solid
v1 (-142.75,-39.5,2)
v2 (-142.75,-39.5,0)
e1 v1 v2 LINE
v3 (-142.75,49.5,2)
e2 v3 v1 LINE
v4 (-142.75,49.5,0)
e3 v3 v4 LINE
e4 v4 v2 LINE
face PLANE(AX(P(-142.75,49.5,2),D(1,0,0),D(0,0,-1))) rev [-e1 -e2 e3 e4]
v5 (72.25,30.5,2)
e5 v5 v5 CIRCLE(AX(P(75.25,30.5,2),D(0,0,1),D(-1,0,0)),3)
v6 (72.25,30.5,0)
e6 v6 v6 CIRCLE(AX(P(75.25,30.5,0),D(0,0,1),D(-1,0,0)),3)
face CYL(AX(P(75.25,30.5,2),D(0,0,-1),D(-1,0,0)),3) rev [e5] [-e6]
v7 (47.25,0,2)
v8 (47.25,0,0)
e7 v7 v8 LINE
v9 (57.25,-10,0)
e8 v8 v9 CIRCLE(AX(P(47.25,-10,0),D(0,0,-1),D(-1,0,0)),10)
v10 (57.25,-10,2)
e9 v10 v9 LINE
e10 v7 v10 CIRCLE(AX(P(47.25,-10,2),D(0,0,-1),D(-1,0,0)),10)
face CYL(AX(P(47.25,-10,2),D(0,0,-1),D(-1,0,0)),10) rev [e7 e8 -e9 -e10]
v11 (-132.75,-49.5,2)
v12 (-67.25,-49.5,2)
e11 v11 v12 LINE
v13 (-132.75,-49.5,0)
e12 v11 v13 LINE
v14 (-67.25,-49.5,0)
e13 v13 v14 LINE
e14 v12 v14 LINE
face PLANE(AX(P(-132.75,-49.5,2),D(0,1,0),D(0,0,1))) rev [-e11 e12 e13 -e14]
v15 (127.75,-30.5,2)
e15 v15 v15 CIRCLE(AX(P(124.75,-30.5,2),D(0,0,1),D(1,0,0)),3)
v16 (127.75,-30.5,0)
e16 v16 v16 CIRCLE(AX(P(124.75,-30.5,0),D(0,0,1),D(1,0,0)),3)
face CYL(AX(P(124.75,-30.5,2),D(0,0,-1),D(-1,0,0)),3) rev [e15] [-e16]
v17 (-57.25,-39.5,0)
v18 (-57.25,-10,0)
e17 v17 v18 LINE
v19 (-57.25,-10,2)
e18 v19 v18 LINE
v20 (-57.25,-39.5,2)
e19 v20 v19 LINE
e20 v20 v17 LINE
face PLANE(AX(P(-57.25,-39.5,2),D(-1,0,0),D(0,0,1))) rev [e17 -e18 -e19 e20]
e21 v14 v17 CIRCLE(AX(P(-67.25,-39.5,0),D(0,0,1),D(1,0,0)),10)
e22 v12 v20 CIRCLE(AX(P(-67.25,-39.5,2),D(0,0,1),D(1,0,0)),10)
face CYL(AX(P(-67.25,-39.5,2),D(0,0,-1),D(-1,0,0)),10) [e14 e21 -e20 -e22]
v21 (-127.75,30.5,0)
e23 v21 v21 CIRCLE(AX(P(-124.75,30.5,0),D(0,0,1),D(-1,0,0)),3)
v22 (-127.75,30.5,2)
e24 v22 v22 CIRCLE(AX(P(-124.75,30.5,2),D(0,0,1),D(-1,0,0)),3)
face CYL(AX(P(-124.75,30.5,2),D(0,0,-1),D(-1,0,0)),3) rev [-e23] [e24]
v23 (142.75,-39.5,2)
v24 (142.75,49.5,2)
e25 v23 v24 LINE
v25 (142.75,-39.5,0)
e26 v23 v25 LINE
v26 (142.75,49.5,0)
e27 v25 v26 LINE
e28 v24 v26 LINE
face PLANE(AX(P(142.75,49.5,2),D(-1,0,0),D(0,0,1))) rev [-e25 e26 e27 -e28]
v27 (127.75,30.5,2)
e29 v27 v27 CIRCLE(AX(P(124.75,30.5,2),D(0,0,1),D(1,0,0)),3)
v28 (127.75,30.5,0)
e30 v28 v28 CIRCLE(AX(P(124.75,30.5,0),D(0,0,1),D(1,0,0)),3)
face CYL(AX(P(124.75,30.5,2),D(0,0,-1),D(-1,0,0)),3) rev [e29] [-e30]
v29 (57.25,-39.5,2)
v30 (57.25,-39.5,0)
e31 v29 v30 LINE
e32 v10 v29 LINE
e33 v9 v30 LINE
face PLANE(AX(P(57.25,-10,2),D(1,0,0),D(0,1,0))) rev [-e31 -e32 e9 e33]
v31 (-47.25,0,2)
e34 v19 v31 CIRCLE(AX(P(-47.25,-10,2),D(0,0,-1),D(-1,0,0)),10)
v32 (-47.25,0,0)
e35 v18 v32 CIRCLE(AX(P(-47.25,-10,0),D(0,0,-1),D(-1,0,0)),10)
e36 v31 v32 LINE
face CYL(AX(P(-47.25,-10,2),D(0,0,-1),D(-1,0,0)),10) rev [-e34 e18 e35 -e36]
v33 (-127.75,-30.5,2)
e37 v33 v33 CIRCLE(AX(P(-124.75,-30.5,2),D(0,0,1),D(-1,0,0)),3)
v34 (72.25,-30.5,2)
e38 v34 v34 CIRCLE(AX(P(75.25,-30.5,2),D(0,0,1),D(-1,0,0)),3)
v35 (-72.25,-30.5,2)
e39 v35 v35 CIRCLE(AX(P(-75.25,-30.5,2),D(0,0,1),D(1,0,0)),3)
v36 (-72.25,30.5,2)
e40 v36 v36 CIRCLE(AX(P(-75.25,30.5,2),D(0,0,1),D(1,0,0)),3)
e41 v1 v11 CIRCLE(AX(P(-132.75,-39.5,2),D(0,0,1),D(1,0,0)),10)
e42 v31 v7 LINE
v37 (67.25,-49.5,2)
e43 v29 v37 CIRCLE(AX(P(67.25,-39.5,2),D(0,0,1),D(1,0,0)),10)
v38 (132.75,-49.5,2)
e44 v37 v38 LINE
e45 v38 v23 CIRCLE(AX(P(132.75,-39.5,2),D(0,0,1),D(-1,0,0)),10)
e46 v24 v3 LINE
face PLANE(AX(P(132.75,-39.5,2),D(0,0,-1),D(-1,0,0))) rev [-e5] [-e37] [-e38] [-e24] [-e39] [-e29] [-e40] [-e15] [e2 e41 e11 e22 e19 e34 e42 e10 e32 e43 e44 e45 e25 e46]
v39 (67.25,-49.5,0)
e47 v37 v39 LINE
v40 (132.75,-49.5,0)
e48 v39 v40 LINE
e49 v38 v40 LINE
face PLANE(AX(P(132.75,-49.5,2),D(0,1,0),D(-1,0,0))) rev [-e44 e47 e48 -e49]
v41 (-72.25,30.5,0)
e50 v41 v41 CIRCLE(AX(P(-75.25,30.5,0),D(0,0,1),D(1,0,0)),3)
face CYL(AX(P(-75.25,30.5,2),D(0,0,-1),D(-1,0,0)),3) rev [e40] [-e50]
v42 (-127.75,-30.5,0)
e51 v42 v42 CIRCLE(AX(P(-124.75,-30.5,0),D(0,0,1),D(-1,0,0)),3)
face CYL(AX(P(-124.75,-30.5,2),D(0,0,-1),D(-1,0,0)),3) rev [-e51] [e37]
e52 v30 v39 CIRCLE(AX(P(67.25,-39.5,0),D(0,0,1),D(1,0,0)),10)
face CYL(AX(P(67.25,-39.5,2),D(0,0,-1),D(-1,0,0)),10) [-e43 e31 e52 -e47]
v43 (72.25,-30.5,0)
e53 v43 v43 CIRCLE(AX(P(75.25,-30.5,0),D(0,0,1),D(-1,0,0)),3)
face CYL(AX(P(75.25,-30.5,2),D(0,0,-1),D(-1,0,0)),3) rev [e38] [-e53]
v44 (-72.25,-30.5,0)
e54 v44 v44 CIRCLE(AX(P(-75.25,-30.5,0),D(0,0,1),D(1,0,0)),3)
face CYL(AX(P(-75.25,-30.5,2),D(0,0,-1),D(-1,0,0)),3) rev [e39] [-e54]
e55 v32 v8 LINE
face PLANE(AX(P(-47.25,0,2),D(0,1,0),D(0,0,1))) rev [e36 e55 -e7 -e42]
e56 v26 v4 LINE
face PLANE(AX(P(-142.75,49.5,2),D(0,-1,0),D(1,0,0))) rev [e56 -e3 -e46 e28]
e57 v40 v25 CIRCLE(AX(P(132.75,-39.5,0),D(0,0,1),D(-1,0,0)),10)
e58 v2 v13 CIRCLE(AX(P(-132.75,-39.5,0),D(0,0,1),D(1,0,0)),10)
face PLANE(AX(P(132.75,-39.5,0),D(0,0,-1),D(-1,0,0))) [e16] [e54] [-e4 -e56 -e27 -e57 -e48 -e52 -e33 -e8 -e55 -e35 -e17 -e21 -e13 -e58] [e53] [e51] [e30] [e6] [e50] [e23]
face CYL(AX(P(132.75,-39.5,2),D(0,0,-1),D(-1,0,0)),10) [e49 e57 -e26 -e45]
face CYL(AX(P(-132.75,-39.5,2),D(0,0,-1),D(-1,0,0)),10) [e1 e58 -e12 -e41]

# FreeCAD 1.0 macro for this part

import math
import FreeCAD as App
import Part
import Sketcher

doc = App.newDocument("Part")
params = doc.addObject("Spreadsheet::Sheet", "Params")
for row, (alias, value) in enumerate([
    ("sketch1_diameter", "6 mm"),
    ("sketch1_radius", "10 mm"),
    ("sketch1_height", "89 mm"),
    ("sketch1_width", "65.5 mm"),
    ("sketch1_width2", "94.5 mm"),
    ("pad1_length", "2 mm"),
], start=1):
    params.set(f"A{row}", alias)
    params.set(f"B{row}", "=" + value)
    params.setAlias(f"B{row}", alias)

body = doc.addObject("PartDesign::Body", "Body")

# Sketch on XY plane
sketch1 = body.newObject("Sketcher::SketchObject", "Sketch")
sketch1.AttachmentSupport = (doc.getObject("XY_Plane"), [""])
sketch1.MapMode = "FlatFace"
sketch1.addGeometry([
    Part.LineSegment(App.Vector(-142.8, 49.5, 0), App.Vector(-142.8, -39.5, 0)),  # 0
    Part.ArcOfCircle(Part.Circle(App.Vector(-132.8, -39.5, 0), App.Vector(0, 0, 1), 10), math.radians(180), math.radians(270)),  # 1
    Part.LineSegment(App.Vector(-132.8, -49.5, 0), App.Vector(-67.2, -49.5, 0)),  # 2
    Part.ArcOfCircle(Part.Circle(App.Vector(-67.2, -39.5, 0), App.Vector(0, 0, 1), 10), math.radians(-90), math.radians(0)),  # 3
    Part.LineSegment(App.Vector(-57.2, -39.5, 0), App.Vector(-57.2, -10, 0)),  # 4
    Part.ArcOfCircle(Part.Circle(App.Vector(-47.2, -10, 0), App.Vector(0, 0, 1), 10), math.radians(90), math.radians(180)),  # 5
    Part.LineSegment(App.Vector(-47.2, 0, 0), App.Vector(47.2, 0, 0)),  # 6
    Part.ArcOfCircle(Part.Circle(App.Vector(47.2, -10, 0), App.Vector(0, 0, 1), 10), math.radians(0), math.radians(90)),  # 7
    Part.LineSegment(App.Vector(57.2, -10, 0), App.Vector(57.2, -39.5, 0)),  # 8
    Part.ArcOfCircle(Part.Circle(App.Vector(67.2, -39.5, 0), App.Vector(0, 0, 1), 10), math.radians(180), math.radians(270)),  # 9
    Part.LineSegment(App.Vector(67.2, -49.5, 0), App.Vector(132.8, -49.5, 0)),  # 10
    Part.ArcOfCircle(Part.Circle(App.Vector(132.8, -39.5, 0), App.Vector(0, 0, 1), 10), math.radians(-90), math.radians(0)),  # 11
    Part.LineSegment(App.Vector(142.8, -39.5, 0), App.Vector(142.8, 49.5, 0)),  # 12
    Part.LineSegment(App.Vector(142.8, 49.5, 0), App.Vector(-142.8, 49.5, 0)),  # 13
    Part.Circle(App.Vector(-124.8, -30.5, 0), App.Vector(0, 0, 1), 3),  # 14
    Part.Circle(App.Vector(-75.2, -30.5, 0), App.Vector(0, 0, 1), 3),  # 15
    Part.Circle(App.Vector(75.2, -30.5, 0), App.Vector(0, 0, 1), 3),  # 16
    Part.Circle(App.Vector(124.8, -30.5, 0), App.Vector(0, 0, 1), 3),  # 17
    Part.Circle(App.Vector(-124.8, 30.5, 0), App.Vector(0, 0, 1), 3),  # 18
    Part.Circle(App.Vector(-75.2, 30.5, 0), App.Vector(0, 0, 1), 3),  # 19
    Part.Circle(App.Vector(75.2, 30.5, 0), App.Vector(0, 0, 1), 3),  # 20
    Part.Circle(App.Vector(124.8, 30.5, 0), App.Vector(0, 0, 1), 3),  # 21
], False)
sketch1.addConstraint([
    Sketcher.Constraint("Tangent", 0, 2, 1, 1),
    Sketcher.Constraint("Tangent", 1, 2, 2, 1),
    Sketcher.Constraint("Tangent", 2, 2, 3, 1),
    Sketcher.Constraint("Tangent", 3, 2, 4, 1),
    Sketcher.Constraint("Tangent", 4, 2, 5, 2),
    Sketcher.Constraint("Tangent", 5, 1, 6, 1),
    Sketcher.Constraint("Tangent", 6, 2, 7, 2),
    Sketcher.Constraint("Tangent", 7, 1, 8, 1),
    Sketcher.Constraint("Tangent", 8, 2, 9, 1),
    Sketcher.Constraint("Tangent", 9, 2, 10, 1),
    Sketcher.Constraint("Tangent", 10, 2, 11, 1),
    Sketcher.Constraint("Tangent", 11, 2, 12, 1),
    Sketcher.Constraint("Coincident", 12, 2, 13, 1),
    Sketcher.Constraint("Coincident", 13, 2, 0, 1),
    Sketcher.Constraint("Vertical", 0),
    Sketcher.Constraint("Horizontal", 2),
    Sketcher.Constraint("Vertical", 4),
    Sketcher.Constraint("Horizontal", 6),
    Sketcher.Constraint("Vertical", 8),
    Sketcher.Constraint("Horizontal", 10),
    Sketcher.Constraint("Vertical", 12),
    Sketcher.Constraint("Horizontal", 13),
    Sketcher.Constraint("Equal", 1, 3),
    Sketcher.Constraint("Equal", 3, 5),
    Sketcher.Constraint("Equal", 5, 7),
    Sketcher.Constraint("Equal", 7, 9),
    Sketcher.Constraint("Equal", 9, 11),
    Sketcher.Constraint("Equal", 14, 15),
    Sketcher.Constraint("Equal", 15, 16),
    Sketcher.Constraint("Equal", 16, 17),
    Sketcher.Constraint("Equal", 17, 18),
    Sketcher.Constraint("Equal", 18, 19),
    Sketcher.Constraint("Equal", 19, 20),
    Sketcher.Constraint("Equal", 20, 21),
    Sketcher.Constraint("Symmetric", 17, 3, 18, 3, -1, 1),
    Sketcher.Constraint("Symmetric", 16, 3, 19, 3, -1, 1),
    Sketcher.Constraint("Symmetric", 15, 3, 20, 3, -1, 1),
    Sketcher.Constraint("Symmetric", 14, 3, 21, 3, -1, 1),
    Sketcher.Constraint("Symmetric", 5, 1, 6, 2, -1, 1),
    Sketcher.Constraint("Symmetric", 1, 3, 11, 3, -2),
    Sketcher.Constraint("Symmetric", 15, 3, 16, 3, -2),
    Sketcher.Constraint("Symmetric", 14, 3, 17, 3, -2),
    Sketcher.Constraint("Horizontal", 14, 3, 15, 3),
    Sketcher.Constraint("Diameter", 14, 6.0),
    Sketcher.Constraint("Radius", 1, 10.0),
    Sketcher.Constraint("DistanceY", 0, 2, 0, 1, 89.0),
    Sketcher.Constraint("DistanceX", 2, 1, 2, 2, 65.5),
    Sketcher.Constraint("DistanceX", 6, 1, 6, 2, 94.5),
    Sketcher.Constraint("DistanceY", 4, 1, 4, 2, 29.5),
    Sketcher.Constraint("DistanceX", 1, 3, 14, 3, 8.0),
    Sketcher.Constraint("DistanceY", 1, 3, 14, 3, 9.0),
    Sketcher.Constraint("DistanceX", 15, 3, 3, 3, 8.0),
])
sketch1.setExpression("Constraints[43]", "Params.sketch1_diameter")
sketch1.setExpression("Constraints[44]", "Params.sketch1_radius")
sketch1.setExpression("Constraints[45]", "Params.sketch1_height")
sketch1.setExpression("Constraints[46]", "Params.sketch1_width")
sketch1.setExpression("Constraints[47]", "Params.sketch1_width2")
pad1 = body.newObject("PartDesign::Pad", "Pad")
pad1.Profile = sketch1
pad1.setExpression("Length", "Params.pad1_length")

doc.recompute()
